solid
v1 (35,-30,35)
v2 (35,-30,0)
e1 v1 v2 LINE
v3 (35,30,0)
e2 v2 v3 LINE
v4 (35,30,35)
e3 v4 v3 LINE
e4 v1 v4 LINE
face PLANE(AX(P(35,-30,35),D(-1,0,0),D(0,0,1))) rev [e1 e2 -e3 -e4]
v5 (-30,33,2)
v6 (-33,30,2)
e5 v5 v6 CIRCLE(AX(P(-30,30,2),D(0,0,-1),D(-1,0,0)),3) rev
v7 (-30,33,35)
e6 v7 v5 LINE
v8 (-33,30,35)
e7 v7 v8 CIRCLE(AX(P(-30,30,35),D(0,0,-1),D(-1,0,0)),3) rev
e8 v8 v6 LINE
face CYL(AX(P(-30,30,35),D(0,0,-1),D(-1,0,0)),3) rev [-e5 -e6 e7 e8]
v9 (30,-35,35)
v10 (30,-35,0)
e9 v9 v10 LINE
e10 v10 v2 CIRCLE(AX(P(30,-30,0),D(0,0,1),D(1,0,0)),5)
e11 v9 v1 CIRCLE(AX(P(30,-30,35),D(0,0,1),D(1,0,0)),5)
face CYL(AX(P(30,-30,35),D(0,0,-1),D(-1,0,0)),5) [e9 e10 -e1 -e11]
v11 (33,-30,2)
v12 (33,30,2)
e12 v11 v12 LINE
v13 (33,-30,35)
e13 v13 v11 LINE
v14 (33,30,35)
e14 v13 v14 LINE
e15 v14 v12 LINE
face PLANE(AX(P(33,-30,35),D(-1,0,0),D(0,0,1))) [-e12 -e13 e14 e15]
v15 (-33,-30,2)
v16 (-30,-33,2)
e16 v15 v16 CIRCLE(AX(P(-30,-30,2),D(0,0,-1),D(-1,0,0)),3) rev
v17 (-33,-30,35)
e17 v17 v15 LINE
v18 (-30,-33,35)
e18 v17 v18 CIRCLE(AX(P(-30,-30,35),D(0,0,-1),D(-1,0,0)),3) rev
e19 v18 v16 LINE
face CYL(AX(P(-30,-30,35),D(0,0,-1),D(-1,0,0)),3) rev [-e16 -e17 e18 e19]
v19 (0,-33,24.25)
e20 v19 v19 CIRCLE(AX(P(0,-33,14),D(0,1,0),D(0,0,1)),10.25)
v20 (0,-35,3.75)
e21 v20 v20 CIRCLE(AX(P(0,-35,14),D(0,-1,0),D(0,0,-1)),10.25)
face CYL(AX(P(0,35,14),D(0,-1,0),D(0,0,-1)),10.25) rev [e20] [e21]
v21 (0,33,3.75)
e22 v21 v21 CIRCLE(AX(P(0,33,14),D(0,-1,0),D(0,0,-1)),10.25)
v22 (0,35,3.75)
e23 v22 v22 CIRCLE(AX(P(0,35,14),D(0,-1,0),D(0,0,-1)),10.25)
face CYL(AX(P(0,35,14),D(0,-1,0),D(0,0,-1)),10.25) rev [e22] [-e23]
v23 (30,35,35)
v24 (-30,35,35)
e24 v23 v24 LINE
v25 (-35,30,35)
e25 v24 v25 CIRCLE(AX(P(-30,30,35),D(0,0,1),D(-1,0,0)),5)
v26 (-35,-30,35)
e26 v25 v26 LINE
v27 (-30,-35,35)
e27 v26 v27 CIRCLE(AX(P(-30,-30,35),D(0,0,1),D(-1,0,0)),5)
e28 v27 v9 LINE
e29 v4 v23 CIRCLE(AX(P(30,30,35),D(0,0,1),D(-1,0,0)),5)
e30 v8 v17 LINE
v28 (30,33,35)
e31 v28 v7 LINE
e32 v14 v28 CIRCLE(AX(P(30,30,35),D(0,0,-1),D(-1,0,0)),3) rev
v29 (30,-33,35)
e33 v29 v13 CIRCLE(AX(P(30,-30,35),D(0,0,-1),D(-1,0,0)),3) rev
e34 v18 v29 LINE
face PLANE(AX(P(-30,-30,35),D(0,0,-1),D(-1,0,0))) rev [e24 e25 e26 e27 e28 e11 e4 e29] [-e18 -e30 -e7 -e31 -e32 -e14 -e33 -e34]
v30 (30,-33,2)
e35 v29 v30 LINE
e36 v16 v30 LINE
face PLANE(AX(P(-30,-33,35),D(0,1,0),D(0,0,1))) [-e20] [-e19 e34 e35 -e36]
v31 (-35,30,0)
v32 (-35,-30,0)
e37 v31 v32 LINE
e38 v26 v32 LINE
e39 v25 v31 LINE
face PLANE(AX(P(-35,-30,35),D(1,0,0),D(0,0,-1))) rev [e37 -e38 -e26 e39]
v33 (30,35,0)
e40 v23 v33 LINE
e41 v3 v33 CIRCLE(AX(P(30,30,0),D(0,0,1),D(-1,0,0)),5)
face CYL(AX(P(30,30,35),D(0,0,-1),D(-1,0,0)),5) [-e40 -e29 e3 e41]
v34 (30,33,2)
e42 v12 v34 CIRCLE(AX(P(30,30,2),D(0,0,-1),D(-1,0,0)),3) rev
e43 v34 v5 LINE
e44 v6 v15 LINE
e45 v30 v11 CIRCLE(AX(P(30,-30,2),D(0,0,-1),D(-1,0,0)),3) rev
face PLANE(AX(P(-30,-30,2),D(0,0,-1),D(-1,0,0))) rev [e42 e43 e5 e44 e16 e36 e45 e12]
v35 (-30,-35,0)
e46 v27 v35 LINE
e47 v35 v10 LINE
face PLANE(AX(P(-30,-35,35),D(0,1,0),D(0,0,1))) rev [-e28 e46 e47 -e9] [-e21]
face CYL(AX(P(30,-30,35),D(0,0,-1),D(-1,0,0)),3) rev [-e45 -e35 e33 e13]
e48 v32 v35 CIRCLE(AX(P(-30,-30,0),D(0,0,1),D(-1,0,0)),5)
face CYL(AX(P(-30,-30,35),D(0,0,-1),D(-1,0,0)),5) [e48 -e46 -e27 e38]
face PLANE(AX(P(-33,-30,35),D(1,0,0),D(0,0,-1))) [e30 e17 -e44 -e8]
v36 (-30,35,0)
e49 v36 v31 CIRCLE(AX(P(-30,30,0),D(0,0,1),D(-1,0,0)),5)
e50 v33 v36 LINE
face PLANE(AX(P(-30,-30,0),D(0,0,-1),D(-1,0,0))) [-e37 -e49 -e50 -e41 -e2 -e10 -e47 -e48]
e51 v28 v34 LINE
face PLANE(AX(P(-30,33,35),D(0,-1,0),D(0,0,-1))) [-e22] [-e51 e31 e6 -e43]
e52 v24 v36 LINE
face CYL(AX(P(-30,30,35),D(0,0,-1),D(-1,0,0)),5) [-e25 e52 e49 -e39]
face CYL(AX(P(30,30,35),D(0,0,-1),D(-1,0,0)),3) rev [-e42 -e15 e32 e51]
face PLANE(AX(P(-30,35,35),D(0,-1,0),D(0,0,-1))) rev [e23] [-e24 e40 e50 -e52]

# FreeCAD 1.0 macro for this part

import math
import FreeCAD as App
import Part
import Sketcher

V = App.Vector
Q = App.Units.Quantity


def faces_at(feature, points):
    """Names of the faces that lie closest to the given points."""
    faces = feature.Shape.Faces
    near = lambda p: min(range(len(faces)), key=lambda i: faces[i].distToShape(Part.Vertex(*p))[0])
    return sorted({f"Face{near(p) + 1}" for p in points})

doc = App.newDocument("Part")
body = doc.addObject("PartDesign::Body", "Body")

# Sketch on XY plane
sketch1 = doc.addObject("Sketcher::SketchObject", "Sketch")
body.addObject(sketch1)
sketch1.AttachmentSupport = (doc.XY_Plane, [""])
sketch1.MapMode = "FlatFace"
sketch1.addGeometry(Part.LineSegment(V(-30, -35, 0), V(30, -35, 0)), False)
sketch1.addGeometry(Part.ArcOfCircle(Part.Circle(V(30, -30, 0), V(0, 0, 1), 5), math.radians(-90), math.radians(0)), False)
sketch1.addGeometry(Part.LineSegment(V(35, -30, 0), V(35, 30, 0)), False)
sketch1.addGeometry(Part.ArcOfCircle(Part.Circle(V(30, 30, 0), V(0, 0, 1), 5), math.radians(0), math.radians(90)), False)
sketch1.addGeometry(Part.LineSegment(V(30, 35, 0), V(-30, 35, 0)), False)
sketch1.addGeometry(Part.ArcOfCircle(Part.Circle(V(-30, 30, 0), V(0, 0, 1), 5), math.radians(90), math.radians(180)), False)
sketch1.addGeometry(Part.LineSegment(V(-35, 30, 0), V(-35, -30, 0)), False)
sketch1.addGeometry(Part.ArcOfCircle(Part.Circle(V(-30, -30, 0), V(0, 0, 1), 5), math.radians(180), math.radians(270)), False)
sketch1.addConstraint(Sketcher.Constraint("Tangent", 0, 2, 1, 1))
sketch1.addConstraint(Sketcher.Constraint("Tangent", 1, 2, 2, 1))
sketch1.addConstraint(Sketcher.Constraint("Tangent", 2, 2, 3, 1))
sketch1.addConstraint(Sketcher.Constraint("Tangent", 3, 2, 4, 1))
sketch1.addConstraint(Sketcher.Constraint("Tangent", 4, 2, 5, 1))
sketch1.addConstraint(Sketcher.Constraint("Tangent", 5, 2, 6, 1))
sketch1.addConstraint(Sketcher.Constraint("Tangent", 6, 2, 7, 1))
sketch1.addConstraint(Sketcher.Constraint("Tangent", 7, 2, 0, 1))
sketch1.addConstraint(Sketcher.Constraint("Horizontal", 0))
sketch1.addConstraint(Sketcher.Constraint("Vertical", 2))
sketch1.addConstraint(Sketcher.Constraint("Horizontal", 4))
sketch1.addConstraint(Sketcher.Constraint("Vertical", 6))
sketch1.addConstraint(Sketcher.Constraint("Equal", 1, 3))
sketch1.addConstraint(Sketcher.Constraint("Equal", 3, 5))
sketch1.addConstraint(Sketcher.Constraint("Equal", 5, 7))
sketch1.addConstraint(Sketcher.Constraint("Symmetric", 1, 3, 5, 3, -1, 1))
sketch1.addConstraint(Sketcher.Constraint("Equal", 4, 2))
sketch1.addConstraint(Sketcher.Constraint("Radius", 1, Q("5 mm")))
sketch1.addConstraint(Sketcher.Constraint("DistanceX", 0, 1, 0, 2, Q("60 mm")))
pad1 = doc.addObject("PartDesign::Pad", "Pad")
body.addObject(pad1)
pad1.Profile = sketch1
pad1.Length = 35
doc.recompute()

thickness = doc.addObject("PartDesign::Thickness", "Thickness")
body.addObject(thickness)
thickness.Base = (pad1, faces_at(pad1, [(0, 0, 35)]))
thickness.Value = 2
thickness.Reversed = True
thickness.Join = "Intersection"

# Sketch on XZ plane
sketch2 = doc.addObject("Sketcher::SketchObject", "Sketch001")
body.addObject(sketch2)
sketch2.AttachmentSupport = (doc.XZ_Plane, [""])
sketch2.MapMode = "FlatFace"
sketch2.AttachmentOffset = App.Placement(V(0, 0, 35), App.Rotation())
sketch2.addGeometry(Part.Circle(V(0, 14, 0), V(0, 0, 1), 10), False)
sketch2.addConstraint(Sketcher.Constraint("PointOnObject", 0, 3, -2))
sketch2.addConstraint(Sketcher.Constraint("Diameter", 0, Q("20.5 mm")))
sketch2.addConstraint(Sketcher.Constraint("DistanceY", -1, 1, 0, 3, Q("14 mm")))
pocket1 = doc.addObject("PartDesign::Pocket", "Pocket")
body.addObject(pocket1)
pocket1.Profile = sketch2
pocket1.Type = "ThroughAll"

doc.recompute()
